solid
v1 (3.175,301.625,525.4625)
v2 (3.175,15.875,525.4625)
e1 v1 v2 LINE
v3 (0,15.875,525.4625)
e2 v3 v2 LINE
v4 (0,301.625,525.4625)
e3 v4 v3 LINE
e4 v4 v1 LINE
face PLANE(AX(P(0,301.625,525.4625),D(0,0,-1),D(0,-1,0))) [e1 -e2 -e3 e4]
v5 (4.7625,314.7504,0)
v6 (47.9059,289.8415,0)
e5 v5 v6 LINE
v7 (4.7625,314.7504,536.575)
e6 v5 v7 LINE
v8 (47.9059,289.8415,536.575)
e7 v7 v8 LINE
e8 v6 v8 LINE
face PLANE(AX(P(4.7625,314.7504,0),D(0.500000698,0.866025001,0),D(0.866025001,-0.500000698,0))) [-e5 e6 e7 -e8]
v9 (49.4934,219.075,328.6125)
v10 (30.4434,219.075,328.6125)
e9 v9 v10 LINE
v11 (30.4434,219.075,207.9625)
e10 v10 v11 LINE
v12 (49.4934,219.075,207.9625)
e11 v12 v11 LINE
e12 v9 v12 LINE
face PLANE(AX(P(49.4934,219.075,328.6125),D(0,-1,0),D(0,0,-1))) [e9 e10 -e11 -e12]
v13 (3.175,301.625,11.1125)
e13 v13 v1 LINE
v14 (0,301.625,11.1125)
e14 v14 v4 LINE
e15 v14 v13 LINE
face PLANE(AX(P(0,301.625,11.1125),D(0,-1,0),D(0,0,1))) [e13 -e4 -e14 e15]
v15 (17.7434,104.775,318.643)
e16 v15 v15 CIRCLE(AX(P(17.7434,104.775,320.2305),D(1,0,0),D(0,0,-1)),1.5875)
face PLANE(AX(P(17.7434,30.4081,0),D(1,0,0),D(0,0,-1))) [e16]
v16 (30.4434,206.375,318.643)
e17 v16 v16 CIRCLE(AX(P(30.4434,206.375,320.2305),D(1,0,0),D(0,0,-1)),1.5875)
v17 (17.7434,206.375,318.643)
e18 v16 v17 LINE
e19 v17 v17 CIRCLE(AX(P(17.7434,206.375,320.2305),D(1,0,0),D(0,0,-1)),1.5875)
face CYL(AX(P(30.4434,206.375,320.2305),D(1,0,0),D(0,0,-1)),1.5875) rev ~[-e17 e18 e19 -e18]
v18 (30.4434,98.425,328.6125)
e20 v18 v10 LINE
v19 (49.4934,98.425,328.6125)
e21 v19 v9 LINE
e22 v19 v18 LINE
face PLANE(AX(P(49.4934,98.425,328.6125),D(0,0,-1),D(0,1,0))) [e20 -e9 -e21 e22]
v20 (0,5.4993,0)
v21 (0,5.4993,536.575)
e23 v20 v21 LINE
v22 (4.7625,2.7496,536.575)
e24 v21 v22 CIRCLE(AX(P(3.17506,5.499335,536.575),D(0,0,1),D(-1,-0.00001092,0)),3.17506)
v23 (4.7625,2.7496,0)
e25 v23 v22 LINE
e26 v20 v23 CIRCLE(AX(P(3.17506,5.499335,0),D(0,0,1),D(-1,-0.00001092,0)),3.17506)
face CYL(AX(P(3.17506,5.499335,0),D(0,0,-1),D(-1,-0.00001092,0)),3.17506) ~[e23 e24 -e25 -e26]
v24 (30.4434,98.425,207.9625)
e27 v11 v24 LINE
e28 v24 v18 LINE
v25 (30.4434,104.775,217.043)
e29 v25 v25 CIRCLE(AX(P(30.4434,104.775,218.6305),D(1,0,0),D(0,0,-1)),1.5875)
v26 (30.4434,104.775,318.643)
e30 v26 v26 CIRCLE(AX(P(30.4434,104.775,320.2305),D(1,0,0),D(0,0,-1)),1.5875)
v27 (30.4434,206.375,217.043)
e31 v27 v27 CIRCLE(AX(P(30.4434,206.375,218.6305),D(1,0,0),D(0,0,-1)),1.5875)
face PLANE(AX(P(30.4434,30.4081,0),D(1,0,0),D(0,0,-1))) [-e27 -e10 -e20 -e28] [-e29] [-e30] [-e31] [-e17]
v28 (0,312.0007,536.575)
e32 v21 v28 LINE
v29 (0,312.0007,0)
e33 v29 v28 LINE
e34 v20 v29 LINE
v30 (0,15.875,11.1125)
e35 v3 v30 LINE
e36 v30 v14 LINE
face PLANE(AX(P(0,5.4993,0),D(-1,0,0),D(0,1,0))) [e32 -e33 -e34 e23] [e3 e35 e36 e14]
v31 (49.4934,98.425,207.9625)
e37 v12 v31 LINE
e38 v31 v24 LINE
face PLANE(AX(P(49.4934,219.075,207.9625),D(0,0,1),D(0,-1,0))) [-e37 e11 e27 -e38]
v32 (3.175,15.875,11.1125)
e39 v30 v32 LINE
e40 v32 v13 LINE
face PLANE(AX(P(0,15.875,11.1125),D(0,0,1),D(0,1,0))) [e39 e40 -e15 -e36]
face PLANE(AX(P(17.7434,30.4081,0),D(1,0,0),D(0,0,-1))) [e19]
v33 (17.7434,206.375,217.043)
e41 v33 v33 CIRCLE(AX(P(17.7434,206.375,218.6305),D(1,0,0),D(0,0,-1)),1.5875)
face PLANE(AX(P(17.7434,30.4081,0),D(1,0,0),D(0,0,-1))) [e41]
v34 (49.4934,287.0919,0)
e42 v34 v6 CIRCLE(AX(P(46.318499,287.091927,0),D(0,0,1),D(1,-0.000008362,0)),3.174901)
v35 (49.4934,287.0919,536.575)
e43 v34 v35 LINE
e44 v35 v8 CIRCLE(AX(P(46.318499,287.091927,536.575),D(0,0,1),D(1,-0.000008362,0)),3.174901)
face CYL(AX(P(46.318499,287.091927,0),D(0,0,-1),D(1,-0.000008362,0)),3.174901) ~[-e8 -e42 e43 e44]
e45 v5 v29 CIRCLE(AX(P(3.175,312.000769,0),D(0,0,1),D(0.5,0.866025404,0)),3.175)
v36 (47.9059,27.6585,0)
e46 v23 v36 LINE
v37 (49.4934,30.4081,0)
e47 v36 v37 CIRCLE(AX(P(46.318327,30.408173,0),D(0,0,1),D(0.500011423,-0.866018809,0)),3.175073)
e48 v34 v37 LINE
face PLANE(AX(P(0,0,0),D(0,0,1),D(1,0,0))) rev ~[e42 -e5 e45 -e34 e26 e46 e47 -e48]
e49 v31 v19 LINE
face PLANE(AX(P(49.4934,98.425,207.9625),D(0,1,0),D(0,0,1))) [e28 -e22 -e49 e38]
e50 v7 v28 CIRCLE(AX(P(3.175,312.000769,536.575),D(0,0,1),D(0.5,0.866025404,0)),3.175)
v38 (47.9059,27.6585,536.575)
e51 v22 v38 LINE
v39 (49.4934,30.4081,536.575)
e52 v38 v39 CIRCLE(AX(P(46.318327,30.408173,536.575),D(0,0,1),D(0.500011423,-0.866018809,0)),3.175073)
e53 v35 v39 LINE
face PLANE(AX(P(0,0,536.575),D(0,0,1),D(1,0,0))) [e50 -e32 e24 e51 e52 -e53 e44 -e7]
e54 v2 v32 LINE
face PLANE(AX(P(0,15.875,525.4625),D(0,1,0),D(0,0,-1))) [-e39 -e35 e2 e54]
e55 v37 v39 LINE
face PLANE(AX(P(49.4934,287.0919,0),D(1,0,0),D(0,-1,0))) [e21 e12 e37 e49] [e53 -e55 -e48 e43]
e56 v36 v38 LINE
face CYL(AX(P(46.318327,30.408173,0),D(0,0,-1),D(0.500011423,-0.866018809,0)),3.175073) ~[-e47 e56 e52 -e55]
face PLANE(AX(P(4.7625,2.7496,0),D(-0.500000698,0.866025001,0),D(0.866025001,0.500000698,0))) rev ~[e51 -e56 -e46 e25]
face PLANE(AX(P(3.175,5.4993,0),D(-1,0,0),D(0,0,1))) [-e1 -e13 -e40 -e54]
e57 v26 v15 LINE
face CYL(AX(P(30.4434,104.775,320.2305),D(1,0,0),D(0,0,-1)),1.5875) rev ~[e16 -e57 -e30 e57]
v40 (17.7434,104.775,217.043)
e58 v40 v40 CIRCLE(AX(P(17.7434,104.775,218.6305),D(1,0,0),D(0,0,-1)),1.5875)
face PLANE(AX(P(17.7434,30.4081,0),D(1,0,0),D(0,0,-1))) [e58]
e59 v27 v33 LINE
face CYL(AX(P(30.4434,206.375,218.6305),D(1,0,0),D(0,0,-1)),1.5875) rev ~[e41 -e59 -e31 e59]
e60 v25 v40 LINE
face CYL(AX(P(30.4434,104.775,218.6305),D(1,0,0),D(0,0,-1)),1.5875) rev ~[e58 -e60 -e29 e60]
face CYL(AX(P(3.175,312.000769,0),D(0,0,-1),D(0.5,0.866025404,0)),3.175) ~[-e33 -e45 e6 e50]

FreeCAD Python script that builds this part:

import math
import FreeCAD as App
import Part
import Sketcher
from FreeCAD import Vector
Q = App.Units.Quantity


def add_polygon(sketch, points):
    """Adds a closed chain of lines whose ends are joined by coincident constraints."""
    first, n = sketch.GeometryCount, len(points)
    for a, b in zip(points, points[1:] + points[:1]):
        sketch.addGeometry(Part.LineSegment(App.Vector(*a, 0), App.Vector(*b, 0)), False)
    for i in range(n):
        sketch.addConstraint(Sketcher.Constraint("Coincident", first + i, 2, first + (i + 1) % n, 1))

doc = App.newDocument("Part")
body = doc.addObject("PartDesign::Body", "Body")

sketch1 = body.newObject("Sketcher::SketchObject", "Sketch")
sketch1.AttachmentSupport = (doc.getObject("XY_Plane"), [""])
sketch1.MapMode = "FlatFace"
sketch1.addGeometry([
    Part.LineSegment(Vector(0, 312, 0), Vector(0, 5.5, 0)),
    Part.ArcOfCircle(Part.Circle(Vector(3.2, 5.5, 0), Vector(0, 0, 1), 3.2), math.radians(180), math.radians(300)),
    Part.LineSegment(Vector(4.8, 2.7, 0), Vector(47.9, 27.7, 0)),
    Part.ArcOfCircle(Part.Circle(Vector(46.3, 30.4, 0), Vector(0, 0, 1), 3.2), math.radians(-60), math.radians(0)),
    Part.LineSegment(Vector(49.5, 30.4, 0), Vector(49.5, 287.1, 0)),
    Part.ArcOfCircle(Part.Circle(Vector(46.3, 287.1, 0), Vector(0, 0, 1), 3.2), math.radians(0), math.radians(60)),
    Part.LineSegment(Vector(47.9, 289.8, 0), Vector(4.8, 314.8, 0)),
    Part.ArcOfCircle(Part.Circle(Vector(3.2, 312, 0), Vector(0, 0, 1), 3.2), math.radians(60), math.radians(180)),
], False)
sketch1.addConstraint([
    Sketcher.Constraint("Tangent", 0, 2, 1, 1),
    Sketcher.Constraint("Tangent", 1, 2, 2, 1),
    Sketcher.Constraint("Tangent", 2, 2, 3, 1),
    Sketcher.Constraint("Tangent", 3, 2, 4, 1),
    Sketcher.Constraint("Tangent", 4, 2, 5, 1),
    Sketcher.Constraint("Tangent", 5, 2, 6, 1),
    Sketcher.Constraint("Tangent", 6, 2, 7, 1),
    Sketcher.Constraint("Tangent", 7, 2, 0, 1),
    Sketcher.Constraint("Vertical", 0),
    Sketcher.Constraint("Vertical", 4),
    Sketcher.Constraint("Equal", 1, 3),
    Sketcher.Constraint("Equal", 3, 5),
    Sketcher.Constraint("Equal", 5, 7),
    Sketcher.Constraint("PointOnObject", 0, 2, -2),
    Sketcher.Constraint("Vertical", 2, 2, 5, 2),
    Sketcher.Constraint("Radius", 1, Q("0.125 in")),
    Sketcher.Constraint("Angle", 2, Q("30 deg")),
    Sketcher.Constraint("DistanceY", 0, 2, 0, 1, 306.5014),
    Sketcher.Constraint("DistanceY", 4, 1, 4, 2, 256.6838),
    Sketcher.Constraint("DistanceY", -1, 1, 1, 3, Q("0.2165 in")),
])
pad1 = body.newObject("PartDesign::Pad", "Pad")
pad1.Profile = sketch1
pad1.Length = Q("21.125 in")

sketch2 = body.newObject("Sketcher::SketchObject", "Sketch001")
sketch2.AttachmentSupport = (doc.getObject("YZ_Plane"), [""])
sketch2.MapMode = "FlatFace"
sketch2.AttachmentOffset = App.Placement(Vector(0, 0, 49.4934), App.Rotation())
add_polygon(sketch2, [(219, 208), (219, 329), (98, 329), (98, 208)])
sketch2.addConstraint([
    Sketcher.Constraint("Vertical", 0),
    Sketcher.Constraint("Horizontal", 1),
    Sketcher.Constraint("Vertical", 2),
    Sketcher.Constraint("Horizontal", 3),
    Sketcher.Constraint("Equal", 3, 0),
    Sketcher.Constraint("DistanceX", 1, 2, 1, 1, Q("4.75 in")),
    Sketcher.Constraint("DistanceX", -1, 1, 0, 2, Q("8.625 in")),
    Sketcher.Constraint("DistanceY", -1, 1, 0, 2, Q("12.9375 in")),
])
pocket1 = body.newObject("PartDesign::Pocket", "Pocket")
pocket1.Profile = sketch2
pocket1.Length = Q("0.75 in")

sketch3 = body.newObject("Sketcher::SketchObject", "Sketch002")
sketch3.AttachmentSupport = (doc.getObject("YZ_Plane"), [""])
sketch3.MapMode = "FlatFace"
sketch3.AttachmentOffset = App.Placement(Vector(0, 0, 30.4434), App.Rotation())
sketch3.addGeometry([
    Part.Circle(Vector(206.4, 218.6, 0), Vector(0, 0, 1), 1.6),
    Part.Circle(Vector(206.4, 320.2, 0), Vector(0, 0, 1), 1.6),
    Part.Circle(Vector(104.8, 218.6, 0), Vector(0, 0, 1), 1.6),
    Part.Circle(Vector(104.8, 320.2, 0), Vector(0, 0, 1), 1.6),
], False)
sketch3.addConstraint([
    Sketcher.Constraint("Equal", 0, 1),
    Sketcher.Constraint("Equal", 1, 2),
    Sketcher.Constraint("Equal", 2, 3),
    Sketcher.Constraint("Horizontal", 0, 3, 2, 3),
    Sketcher.Constraint("Horizontal", 1, 3, 3, 3),
    Sketcher.Constraint("Vertical", 0, 3, 1, 3),
    Sketcher.Constraint("Vertical", 2, 3, 3, 3),
    Sketcher.Constraint("Diameter", 0, Q("0.125 in")),
    Sketcher.Constraint("DistanceY", 0, 3, 1, 3, Q("4 in")),
    Sketcher.Constraint("DistanceX", 2, 3, 0, 3, Q("4 in")),
    Sketcher.Constraint("DistanceX", -1, 1, 0, 3, Q("8.125 in")),
    Sketcher.Constraint("DistanceY", -1, 1, 0, 3, Q("8.6075 in")),
])
pocket2 = body.newObject("PartDesign::Pocket", "Pocket001")
pocket2.Profile = sketch3
pocket2.Length = Q("0.5 in")

sketch4 = body.newObject("Sketcher::SketchObject", "Sketch003")
sketch4.AttachmentSupport = (doc.getObject("YZ_Plane"), [""])
sketch4.MapMode = "FlatFace"
add_polygon(sketch4, [(302, 525), (302, 11), (16, 11), (16, 525)])
sketch4.addConstraint([
    Sketcher.Constraint("Vertical", 0),
    Sketcher.Constraint("Horizontal", 1),
    Sketcher.Constraint("Vertical", 2),
    Sketcher.Constraint("Horizontal", 3),
    Sketcher.Constraint("DistanceX", 1, 2, 1, 1, Q("11.25 in")),
    Sketcher.Constraint("DistanceY", 0, 2, 0, 1, Q("20.25 in")),
    Sketcher.Constraint("DistanceX", -1, 1, 0, 2, Q("11.875 in")),
    Sketcher.Constraint("DistanceY", -1, 1, 0, 2, Q("0.4375 in")),
])
pocket3 = body.newObject("PartDesign::Pocket", "Pocket002")
pocket3.Profile = sketch4
pocket3.Length = Q("0.125 in")
pocket3.Reversed = True

doc.recompute()
